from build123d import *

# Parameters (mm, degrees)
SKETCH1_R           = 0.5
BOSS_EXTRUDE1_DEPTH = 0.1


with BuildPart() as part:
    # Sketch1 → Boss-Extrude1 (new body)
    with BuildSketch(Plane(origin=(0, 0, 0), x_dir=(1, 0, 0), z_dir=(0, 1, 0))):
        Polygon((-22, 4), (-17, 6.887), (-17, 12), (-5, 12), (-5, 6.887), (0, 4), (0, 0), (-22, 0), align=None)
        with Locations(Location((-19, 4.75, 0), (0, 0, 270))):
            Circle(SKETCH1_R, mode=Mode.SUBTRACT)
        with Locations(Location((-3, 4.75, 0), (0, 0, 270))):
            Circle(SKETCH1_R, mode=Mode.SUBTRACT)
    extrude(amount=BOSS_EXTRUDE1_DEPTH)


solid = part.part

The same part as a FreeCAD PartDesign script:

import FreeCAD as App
import Part
import Sketcher
from FreeCAD import Vector
Q = App.Units.Quantity


def add_polygon(sketch, points):
    """Adds a closed chain of lines whose ends are joined by coincident constraints."""
    first, n = sketch.GeometryCount, len(points)
    for a, b in zip(points, points[1:] + points[:1]):
        sketch.addGeometry(Part.LineSegment(App.Vector(*a, 0), App.Vector(*b, 0)), False)
    for i in range(n):
        sketch.addConstraint(Sketcher.Constraint("Coincident", first + i, 2, first + (i + 1) % n, 1))

doc = App.newDocument("Part")
body = doc.addObject("PartDesign::Body", "Body")

# Sketch on XZ plane
sketch1 = body.newObject("Sketcher::SketchObject", "Sketch")
sketch1.AttachmentSupport = (doc.getObject("XZ_Plane"), [""])
sketch1.MapMode = "FlatFace"
add_polygon(sketch1, [(-17, -6.9), (-22, -4), (-22, 0), (0, 0), (0, -4), (-5, -6.9), (-5, -12), (-17, -12)])  # lines 0-7
sketch1.addGeometry(Part.Circle(Vector(-3, -4.8, 0), Vector(0, 0, 1), 0.5), False)  # 8
sketch1.addGeometry(Part.Circle(Vector(-19, -4.8, 0), Vector(0, 0, 1), 0.5), False)  # 9
sketch1.addConstraint([
    Sketcher.Constraint("Vertical", 1),
    Sketcher.Constraint("Horizontal", 2),
    Sketcher.Constraint("Vertical", 3),
    Sketcher.Constraint("Vertical", 5),
    Sketcher.Constraint("Horizontal", 6),
    Sketcher.Constraint("Vertical", 7),
    Sketcher.Constraint("Coincident", 2, 2, -1, 1),
    Sketcher.Constraint("Equal", 8, 9),
    Sketcher.Constraint("Horizontal", 8, 3, 9, 3),
    Sketcher.Constraint("Horizontal", 0, 2, 3, 2),
    Sketcher.Constraint("Horizontal", 4, 2, 7, 2),
    Sketcher.Constraint("Equal", 0, 4),
    Sketcher.Constraint("Diameter", 8, Q("1 mm")),
    Sketcher.Constraint("DistanceX", 2, 1, 2, 2, Q("22 mm")),
    Sketcher.Constraint("DistanceX", 6, 2, 6, 1, Q("12 mm")),
    Sketcher.Constraint("DistanceY", 1, 1, 1, 2, Q("4 mm")),
    Sketcher.Constraint("DistanceX", 8, 3, -1, 1, Q("3 mm")),
    Sketcher.Constraint("DistanceX", 9, 3, -1, 1, Q("19 mm")),
    Sketcher.Constraint("DistanceY", 5, 2, -1, 1, Q("12 mm")),
    Sketcher.Constraint("DistanceY", 5, 2, 5, 1, Q("5.113 mm")),
    Sketcher.Constraint("DistanceY", 8, 3, -1, 1, Q("4.75 mm")),
])
pad1 = body.newObject("PartDesign::Pad", "Pad")
pad1.Profile = sketch1
pad1.Length = 0.1
pad1.Reversed = True

doc.recompute()
